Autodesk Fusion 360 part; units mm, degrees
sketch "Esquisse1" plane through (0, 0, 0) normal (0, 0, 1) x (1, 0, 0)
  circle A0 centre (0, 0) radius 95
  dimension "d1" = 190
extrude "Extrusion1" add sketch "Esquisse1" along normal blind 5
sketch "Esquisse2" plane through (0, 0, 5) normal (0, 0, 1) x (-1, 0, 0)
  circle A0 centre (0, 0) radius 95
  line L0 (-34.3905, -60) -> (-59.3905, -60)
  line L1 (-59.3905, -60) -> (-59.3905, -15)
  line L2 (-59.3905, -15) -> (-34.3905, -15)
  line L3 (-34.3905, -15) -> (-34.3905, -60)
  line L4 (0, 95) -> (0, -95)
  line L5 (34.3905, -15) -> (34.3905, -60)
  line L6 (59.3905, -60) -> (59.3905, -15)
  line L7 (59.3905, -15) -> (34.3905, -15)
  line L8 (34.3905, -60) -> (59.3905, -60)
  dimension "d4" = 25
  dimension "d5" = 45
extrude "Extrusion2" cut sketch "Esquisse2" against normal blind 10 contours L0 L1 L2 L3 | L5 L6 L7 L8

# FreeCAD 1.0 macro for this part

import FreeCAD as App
import Part
import Sketcher


def add_polygon(sketch, points):
    """Adds a closed chain of lines whose ends are joined by coincident constraints."""
    first, n = sketch.GeometryCount, len(points)
    for a, b in zip(points, points[1:] + points[:1]):
        sketch.addGeometry(Part.LineSegment(App.Vector(*a, 0), App.Vector(*b, 0)), False)
    for i in range(n):
        sketch.addConstraint(Sketcher.Constraint("Coincident", first + i, 2, first + (i + 1) % n, 1))

doc = App.newDocument("Part")
body = doc.addObject("PartDesign::Body", "Body")

# Sketch on XY plane
sketch1 = body.newObject("Sketcher::SketchObject", "Sketch")
sketch1.AttachmentSupport = (doc.getObject("XY_Plane"), [""])
sketch1.MapMode = "FlatFace"
sketch1.addGeometry(Part.Circle(App.Vector(0, 0, 0), App.Vector(0, 0, 1), 95), False)
sketch1.addConstraint([
    Sketcher.Constraint("Coincident", 0, 3, -1, 1),
    Sketcher.Constraint("Diameter", 0, 190.0),
])
pad1 = body.newObject("PartDesign::Pad", "Pad")
pad1.Profile = sketch1
pad1.Length = 5

# Sketch on XY plane
sketch2 = body.newObject("Sketcher::SketchObject", "Sketch001")
sketch2.AttachmentSupport = (doc.getObject("XY_Plane"), [""])
sketch2.MapMode = "FlatFace"
sketch2.AttachmentOffset = App.Placement(App.Vector(0, 0, 5), App.Rotation())
add_polygon(sketch2, [(59, 60), (34, 60), (34, 15), (59, 15)])  # lines 0-3
add_polygon(sketch2, [(-59, 15), (-34, 15), (-34, 60), (-59, 60)])  # lines 4-7
sketch2.addConstraint([
    Sketcher.Constraint("Horizontal", 0),
    Sketcher.Constraint("Vertical", 1),
    Sketcher.Constraint("Horizontal", 2),
    Sketcher.Constraint("Vertical", 3),
    Sketcher.Constraint("Horizontal", 4),
    Sketcher.Constraint("Vertical", 5),
    Sketcher.Constraint("Horizontal", 6),
    Sketcher.Constraint("Vertical", 7),
    Sketcher.Constraint("Symmetric", 1, 2, 4, 2, -2),
    Sketcher.Constraint("Symmetric", 3, 2, 6, 2, -2),
    Sketcher.Constraint("DistanceX", 0, 2, 0, 1, 25.0),
    Sketcher.Constraint("DistanceY", 1, 2, 1, 1, 45.0),
    Sketcher.Constraint("DistanceY", -1, 1, 0, 2, 60.0),
    Sketcher.Constraint("DistanceX", 4, 2, 1, 2, 68.781),
])
pocket1 = body.newObject("PartDesign::Pocket", "Pocket")
pocket1.Profile = sketch2
pocket1.Length = 10

doc.recompute()
